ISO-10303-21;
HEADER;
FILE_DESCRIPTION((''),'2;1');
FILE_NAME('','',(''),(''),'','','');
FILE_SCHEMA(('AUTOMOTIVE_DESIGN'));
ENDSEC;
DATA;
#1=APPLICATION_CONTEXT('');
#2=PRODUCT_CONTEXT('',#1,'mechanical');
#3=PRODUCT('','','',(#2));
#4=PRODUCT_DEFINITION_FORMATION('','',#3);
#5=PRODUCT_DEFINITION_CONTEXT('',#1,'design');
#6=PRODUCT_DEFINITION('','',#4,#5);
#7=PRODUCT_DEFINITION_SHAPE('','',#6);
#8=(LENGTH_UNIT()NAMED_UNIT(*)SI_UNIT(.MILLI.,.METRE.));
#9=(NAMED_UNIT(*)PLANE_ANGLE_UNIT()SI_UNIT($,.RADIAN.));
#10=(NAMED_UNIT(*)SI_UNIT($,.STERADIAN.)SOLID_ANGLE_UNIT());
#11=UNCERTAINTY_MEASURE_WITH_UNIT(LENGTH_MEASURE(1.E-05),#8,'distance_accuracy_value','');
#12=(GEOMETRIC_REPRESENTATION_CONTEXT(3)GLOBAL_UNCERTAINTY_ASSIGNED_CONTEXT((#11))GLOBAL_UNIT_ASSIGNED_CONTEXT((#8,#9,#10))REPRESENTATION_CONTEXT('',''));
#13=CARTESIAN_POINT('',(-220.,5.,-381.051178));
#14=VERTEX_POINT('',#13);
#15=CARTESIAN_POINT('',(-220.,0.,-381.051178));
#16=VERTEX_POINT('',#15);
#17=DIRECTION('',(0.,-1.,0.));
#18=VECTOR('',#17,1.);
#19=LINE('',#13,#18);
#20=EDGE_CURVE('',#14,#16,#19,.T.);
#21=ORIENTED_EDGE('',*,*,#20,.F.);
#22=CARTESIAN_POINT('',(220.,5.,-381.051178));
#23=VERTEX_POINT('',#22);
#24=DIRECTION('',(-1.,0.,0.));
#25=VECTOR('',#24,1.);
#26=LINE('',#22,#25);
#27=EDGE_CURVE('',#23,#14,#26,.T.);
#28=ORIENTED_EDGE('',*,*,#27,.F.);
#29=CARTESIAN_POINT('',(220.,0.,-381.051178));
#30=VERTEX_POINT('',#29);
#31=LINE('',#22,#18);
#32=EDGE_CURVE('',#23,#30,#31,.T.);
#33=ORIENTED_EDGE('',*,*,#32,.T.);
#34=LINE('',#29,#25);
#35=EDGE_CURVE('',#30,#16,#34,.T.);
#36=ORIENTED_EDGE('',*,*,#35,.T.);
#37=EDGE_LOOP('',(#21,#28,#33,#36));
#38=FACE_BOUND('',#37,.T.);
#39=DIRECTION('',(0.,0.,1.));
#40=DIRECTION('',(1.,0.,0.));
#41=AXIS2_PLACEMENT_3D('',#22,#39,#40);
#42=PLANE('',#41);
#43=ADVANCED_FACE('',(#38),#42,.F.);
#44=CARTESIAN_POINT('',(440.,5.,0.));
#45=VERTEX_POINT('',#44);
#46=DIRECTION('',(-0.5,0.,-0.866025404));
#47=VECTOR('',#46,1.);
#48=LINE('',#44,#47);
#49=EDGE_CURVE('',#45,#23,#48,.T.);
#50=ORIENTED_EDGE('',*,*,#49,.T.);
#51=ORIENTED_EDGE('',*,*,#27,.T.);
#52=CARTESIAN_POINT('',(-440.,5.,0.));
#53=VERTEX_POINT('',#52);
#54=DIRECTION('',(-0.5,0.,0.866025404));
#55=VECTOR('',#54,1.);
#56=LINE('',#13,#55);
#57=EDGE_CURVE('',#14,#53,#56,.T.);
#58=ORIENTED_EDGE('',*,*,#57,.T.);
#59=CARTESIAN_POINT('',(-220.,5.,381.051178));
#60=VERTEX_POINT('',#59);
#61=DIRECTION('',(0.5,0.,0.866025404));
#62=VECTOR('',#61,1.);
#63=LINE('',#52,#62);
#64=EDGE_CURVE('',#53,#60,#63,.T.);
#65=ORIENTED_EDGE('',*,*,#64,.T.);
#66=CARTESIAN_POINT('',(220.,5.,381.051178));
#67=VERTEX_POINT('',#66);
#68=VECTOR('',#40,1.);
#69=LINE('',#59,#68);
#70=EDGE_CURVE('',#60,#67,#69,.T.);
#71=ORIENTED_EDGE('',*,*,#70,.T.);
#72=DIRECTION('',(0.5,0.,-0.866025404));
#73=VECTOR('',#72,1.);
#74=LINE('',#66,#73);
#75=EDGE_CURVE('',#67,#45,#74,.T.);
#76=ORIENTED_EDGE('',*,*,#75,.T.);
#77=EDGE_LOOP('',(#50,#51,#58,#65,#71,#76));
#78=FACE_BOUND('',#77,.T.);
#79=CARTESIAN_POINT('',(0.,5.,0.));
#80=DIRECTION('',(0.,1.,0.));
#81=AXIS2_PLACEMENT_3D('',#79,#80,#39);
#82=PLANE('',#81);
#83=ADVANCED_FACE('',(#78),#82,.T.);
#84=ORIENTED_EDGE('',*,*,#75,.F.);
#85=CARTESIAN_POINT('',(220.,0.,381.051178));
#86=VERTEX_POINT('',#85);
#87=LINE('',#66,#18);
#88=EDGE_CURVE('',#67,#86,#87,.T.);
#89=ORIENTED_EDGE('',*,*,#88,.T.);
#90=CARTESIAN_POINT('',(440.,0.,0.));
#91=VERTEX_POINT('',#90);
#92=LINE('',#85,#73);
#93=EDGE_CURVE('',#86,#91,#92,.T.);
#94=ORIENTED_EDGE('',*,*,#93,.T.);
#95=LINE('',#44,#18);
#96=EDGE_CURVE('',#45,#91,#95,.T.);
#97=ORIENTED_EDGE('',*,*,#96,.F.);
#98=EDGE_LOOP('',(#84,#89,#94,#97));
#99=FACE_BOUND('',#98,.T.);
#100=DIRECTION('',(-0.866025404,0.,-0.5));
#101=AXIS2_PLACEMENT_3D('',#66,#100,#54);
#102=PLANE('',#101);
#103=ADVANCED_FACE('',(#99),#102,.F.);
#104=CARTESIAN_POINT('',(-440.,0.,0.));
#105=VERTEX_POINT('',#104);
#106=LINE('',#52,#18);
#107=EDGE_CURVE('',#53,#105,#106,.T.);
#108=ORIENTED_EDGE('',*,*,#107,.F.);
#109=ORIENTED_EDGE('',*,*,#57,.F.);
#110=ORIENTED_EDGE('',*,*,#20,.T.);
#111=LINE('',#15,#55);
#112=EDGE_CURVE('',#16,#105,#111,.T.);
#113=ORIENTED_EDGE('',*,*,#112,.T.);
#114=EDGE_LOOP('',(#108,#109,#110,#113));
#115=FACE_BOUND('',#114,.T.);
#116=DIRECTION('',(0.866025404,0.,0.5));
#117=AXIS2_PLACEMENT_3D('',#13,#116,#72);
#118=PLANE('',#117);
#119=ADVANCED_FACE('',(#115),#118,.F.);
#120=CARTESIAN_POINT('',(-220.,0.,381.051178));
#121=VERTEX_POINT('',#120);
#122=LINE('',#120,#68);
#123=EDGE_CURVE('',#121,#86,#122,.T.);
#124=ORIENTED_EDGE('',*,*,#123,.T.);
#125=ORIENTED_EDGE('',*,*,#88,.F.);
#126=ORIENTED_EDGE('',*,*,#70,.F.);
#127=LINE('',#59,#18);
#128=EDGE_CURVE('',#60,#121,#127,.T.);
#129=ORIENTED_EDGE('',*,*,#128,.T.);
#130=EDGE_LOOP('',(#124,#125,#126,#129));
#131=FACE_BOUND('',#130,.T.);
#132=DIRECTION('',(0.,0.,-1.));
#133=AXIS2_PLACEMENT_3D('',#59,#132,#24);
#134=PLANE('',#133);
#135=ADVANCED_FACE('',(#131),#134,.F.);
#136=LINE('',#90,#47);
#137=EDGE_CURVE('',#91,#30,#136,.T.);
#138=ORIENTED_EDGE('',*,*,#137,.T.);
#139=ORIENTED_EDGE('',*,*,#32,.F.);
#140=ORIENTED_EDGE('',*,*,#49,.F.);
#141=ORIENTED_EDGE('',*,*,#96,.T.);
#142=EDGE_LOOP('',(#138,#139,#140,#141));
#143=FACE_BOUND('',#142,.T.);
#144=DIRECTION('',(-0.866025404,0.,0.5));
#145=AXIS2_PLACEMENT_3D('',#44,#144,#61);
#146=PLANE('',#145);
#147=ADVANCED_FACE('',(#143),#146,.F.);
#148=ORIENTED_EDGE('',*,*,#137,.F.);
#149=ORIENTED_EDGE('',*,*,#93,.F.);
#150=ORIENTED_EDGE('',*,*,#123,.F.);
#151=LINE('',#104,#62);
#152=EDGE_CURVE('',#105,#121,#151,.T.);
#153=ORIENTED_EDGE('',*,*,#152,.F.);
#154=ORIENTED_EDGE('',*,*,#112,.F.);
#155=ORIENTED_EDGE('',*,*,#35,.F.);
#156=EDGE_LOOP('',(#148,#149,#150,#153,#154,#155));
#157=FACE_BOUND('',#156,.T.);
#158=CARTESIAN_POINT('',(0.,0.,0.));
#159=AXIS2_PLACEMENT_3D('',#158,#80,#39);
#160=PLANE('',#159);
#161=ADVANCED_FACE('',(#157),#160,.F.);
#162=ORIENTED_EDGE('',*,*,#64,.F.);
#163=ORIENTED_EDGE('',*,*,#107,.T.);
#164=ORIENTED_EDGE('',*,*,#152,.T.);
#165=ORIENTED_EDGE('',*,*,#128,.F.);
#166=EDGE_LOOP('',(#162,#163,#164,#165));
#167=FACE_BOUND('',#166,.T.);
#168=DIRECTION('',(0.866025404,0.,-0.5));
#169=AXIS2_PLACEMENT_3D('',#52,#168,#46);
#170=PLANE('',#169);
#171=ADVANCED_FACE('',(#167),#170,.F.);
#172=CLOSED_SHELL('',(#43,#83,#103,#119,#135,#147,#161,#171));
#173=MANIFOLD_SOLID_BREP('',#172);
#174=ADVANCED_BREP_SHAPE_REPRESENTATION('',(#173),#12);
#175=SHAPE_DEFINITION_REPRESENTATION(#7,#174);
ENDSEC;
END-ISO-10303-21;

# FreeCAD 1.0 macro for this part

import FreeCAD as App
import Part
import Sketcher

V = App.Vector
Q = App.Units.Quantity


def add_polygon(sketch, points):
    """Adds a closed chain of lines whose ends are joined by coincident constraints."""
    first, n = sketch.GeometryCount, len(points)
    for a, b in zip(points, points[1:] + points[:1]):
        sketch.addGeometry(Part.LineSegment(App.Vector(*a, 0), App.Vector(*b, 0)), False)
    for i in range(n):
        sketch.addConstraint(Sketcher.Constraint("Coincident", first + i, 2, first + (i + 1) % n, 1))

doc = App.newDocument("Part")
body = doc.addObject("PartDesign::Body", "Body")

sketch1 = body.newObject("Sketcher::SketchObject", "Sketch")
sketch1.AttachmentSupport = (doc.getObject("XZ_Plane"), [""])
sketch1.MapMode = "FlatFace"
add_polygon(sketch1, [(220, -381.051178), (-220, -381.051178), (-440, 0), (-220, 381.051178), (220, 381.051178), (440, 0)])
sketch1.addConstraint([
    Sketcher.Constraint("Horizontal", 0),
    Sketcher.Constraint("Horizontal", 3),
    Sketcher.Constraint("Symmetric", 0, 2, 3, 2, -1, 1),
    Sketcher.Constraint("Symmetric", 1, 2, 4, 2, -1, 1),
    Sketcher.Constraint("PointOnObject", 1, 2, -1),
    Sketcher.Constraint("Parallel", 2, 5),
    Sketcher.Constraint("Vertical", 0, 2, 2, 2),
    Sketcher.Constraint("DistanceX", 0, 2, 0, 1, Q("440 mm")),
    Sketcher.Constraint("Angle", 1, Q("120 deg")),
    Sketcher.Constraint("Distance", 1, Q("440 mm")),
])
pad1 = body.newObject("PartDesign::Pad", "Pad")
pad1.Profile = sketch1
pad1.Length = 5
pad1.Reversed = True

doc.recompute()
